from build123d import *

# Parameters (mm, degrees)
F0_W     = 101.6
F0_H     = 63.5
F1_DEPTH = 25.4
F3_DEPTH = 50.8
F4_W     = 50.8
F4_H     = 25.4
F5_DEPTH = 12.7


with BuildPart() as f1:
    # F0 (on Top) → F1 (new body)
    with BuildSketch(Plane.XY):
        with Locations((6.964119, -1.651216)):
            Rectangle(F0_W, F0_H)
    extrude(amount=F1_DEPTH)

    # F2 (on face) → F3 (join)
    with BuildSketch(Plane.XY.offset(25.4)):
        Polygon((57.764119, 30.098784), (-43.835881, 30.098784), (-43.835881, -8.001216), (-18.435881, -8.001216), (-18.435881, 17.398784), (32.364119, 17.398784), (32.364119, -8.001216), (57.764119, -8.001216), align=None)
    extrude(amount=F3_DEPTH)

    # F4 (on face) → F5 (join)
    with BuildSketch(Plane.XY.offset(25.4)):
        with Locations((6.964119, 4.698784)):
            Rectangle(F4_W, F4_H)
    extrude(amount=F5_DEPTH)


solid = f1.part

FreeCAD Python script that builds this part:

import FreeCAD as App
import Part
import Sketcher
Q = App.Units.Quantity


def add_polygon(sketch, points):
    """Adds a closed chain of lines whose ends are joined by coincident constraints."""
    first, n = sketch.GeometryCount, len(points)
    for a, b in zip(points, points[1:] + points[:1]):
        sketch.addGeometry(Part.LineSegment(App.Vector(*a, 0), App.Vector(*b, 0)), False)
    for i in range(n):
        sketch.addConstraint(Sketcher.Constraint("Coincident", first + i, 2, first + (i + 1) % n, 1))

doc = App.newDocument("Part")
body = doc.addObject("PartDesign::Body", "Body")

# Sketch on XY plane
sketch1 = doc.addObject("Sketcher::SketchObject", "Sketch")
body.addObject(sketch1)
sketch1.AttachmentSupport = (doc.XY_Plane, [""])
sketch1.MapMode = "FlatFace"
add_polygon(sketch1, [(-44, 30), (-44, -33), (58, -33), (58, 30)])  # lines 0-3
sketch1.addConstraint(Sketcher.Constraint("Vertical", 0))
sketch1.addConstraint(Sketcher.Constraint("Horizontal", 1))
sketch1.addConstraint(Sketcher.Constraint("Vertical", 2))
sketch1.addConstraint(Sketcher.Constraint("Horizontal", 3))
sketch1.addConstraint(Sketcher.Constraint("DistanceX", 1, 1, 1, 2, Q("4 in")))
sketch1.addConstraint(Sketcher.Constraint("DistanceY", 0, 2, 0, 1, Q("2.5 in")))
sketch1.addConstraint(Sketcher.Constraint("DistanceX", 0, 2, -1, 1, Q("43.835881 mm")))
sketch1.addConstraint(Sketcher.Constraint("DistanceY", 0, 2, -1, 1, Q("33.401216 mm")))
pad1 = doc.addObject("PartDesign::Pad", "Pad")
body.addObject(pad1)
pad1.Profile = sketch1
pad1.Length = Q("1 in")

# Sketch on XY plane
sketch2 = doc.addObject("Sketcher::SketchObject", "Sketch001")
body.addObject(sketch2)
sketch2.AttachmentSupport = (doc.XY_Plane, [""])
sketch2.MapMode = "FlatFace"
sketch2.AttachmentOffset = App.Placement(App.Vector(0, 0, 1 * 25.4), App.Rotation())
add_polygon(sketch2, [(58, 30), (-44, 30), (-44, -8), (-18, -8), (-18, 17), (32, 17), (32, -8), (58, -8)])  # lines 0-7
sketch2.addConstraint(Sketcher.Constraint("Horizontal", 0))
sketch2.addConstraint(Sketcher.Constraint("Vertical", 1))
sketch2.addConstraint(Sketcher.Constraint("Horizontal", 2))
sketch2.addConstraint(Sketcher.Constraint("Vertical", 3))
sketch2.addConstraint(Sketcher.Constraint("Horizontal", 4))
sketch2.addConstraint(Sketcher.Constraint("Vertical", 5))
sketch2.addConstraint(Sketcher.Constraint("Horizontal", 6))
sketch2.addConstraint(Sketcher.Constraint("Vertical", 7))
sketch2.addConstraint(Sketcher.Constraint("Horizontal", 2, 2, 5, 2))
sketch2.addConstraint(Sketcher.Constraint("Equal", 2, 6))
sketch2.addConstraint(Sketcher.Constraint("Equal", 6, 3))
sketch2.addConstraint(Sketcher.Constraint("DistanceX", 0, 2, 0, 1, Q("4 in")))
sketch2.addConstraint(Sketcher.Constraint("DistanceX", 2, 1, 2, 2, Q("1 in")))
sketch2.addConstraint(Sketcher.Constraint("DistanceY", 1, 2, 1, 1, Q("1.5 in")))
sketch2.addConstraint(Sketcher.Constraint("DistanceX", 0, 2, -1, 1, Q("43.835881 mm")))
sketch2.addConstraint(Sketcher.Constraint("DistanceY", -1, 1, 0, 2, Q("30.098784 mm")))
pad2 = doc.addObject("PartDesign::Pad", "Pad001")
body.addObject(pad2)
pad2.Profile = sketch2
pad2.Length = Q("2 in")

# Sketch on XY plane
sketch3 = doc.addObject("Sketcher::SketchObject", "Sketch002")
body.addObject(sketch3)
sketch3.AttachmentSupport = (doc.XY_Plane, [""])
sketch3.MapMode = "FlatFace"
sketch3.AttachmentOffset = App.Placement(App.Vector(0, 0, 1 * 25.4), App.Rotation())
add_polygon(sketch3, [(-18, 17), (-18, -8), (32, -8), (32, 17)])  # lines 0-3
sketch3.addConstraint(Sketcher.Constraint("Vertical", 0))
sketch3.addConstraint(Sketcher.Constraint("Horizontal", 1))
sketch3.addConstraint(Sketcher.Constraint("Vertical", 2))
sketch3.addConstraint(Sketcher.Constraint("Horizontal", 3))
sketch3.addConstraint(Sketcher.Constraint("DistanceX", 1, 1, 1, 2, Q("2 in")))
sketch3.addConstraint(Sketcher.Constraint("DistanceY", 0, 2, 0, 1, Q("1 in")))
sketch3.addConstraint(Sketcher.Constraint("DistanceX", 0, 2, -1, 1, Q("18.435881 mm")))
sketch3.addConstraint(Sketcher.Constraint("DistanceY", 0, 2, -1, 1, Q("8.001216 mm")))
pad3 = doc.addObject("PartDesign::Pad", "Pad002")
body.addObject(pad3)
pad3.Profile = sketch3
pad3.Length = Q("0.5 in")

doc.recompute()
